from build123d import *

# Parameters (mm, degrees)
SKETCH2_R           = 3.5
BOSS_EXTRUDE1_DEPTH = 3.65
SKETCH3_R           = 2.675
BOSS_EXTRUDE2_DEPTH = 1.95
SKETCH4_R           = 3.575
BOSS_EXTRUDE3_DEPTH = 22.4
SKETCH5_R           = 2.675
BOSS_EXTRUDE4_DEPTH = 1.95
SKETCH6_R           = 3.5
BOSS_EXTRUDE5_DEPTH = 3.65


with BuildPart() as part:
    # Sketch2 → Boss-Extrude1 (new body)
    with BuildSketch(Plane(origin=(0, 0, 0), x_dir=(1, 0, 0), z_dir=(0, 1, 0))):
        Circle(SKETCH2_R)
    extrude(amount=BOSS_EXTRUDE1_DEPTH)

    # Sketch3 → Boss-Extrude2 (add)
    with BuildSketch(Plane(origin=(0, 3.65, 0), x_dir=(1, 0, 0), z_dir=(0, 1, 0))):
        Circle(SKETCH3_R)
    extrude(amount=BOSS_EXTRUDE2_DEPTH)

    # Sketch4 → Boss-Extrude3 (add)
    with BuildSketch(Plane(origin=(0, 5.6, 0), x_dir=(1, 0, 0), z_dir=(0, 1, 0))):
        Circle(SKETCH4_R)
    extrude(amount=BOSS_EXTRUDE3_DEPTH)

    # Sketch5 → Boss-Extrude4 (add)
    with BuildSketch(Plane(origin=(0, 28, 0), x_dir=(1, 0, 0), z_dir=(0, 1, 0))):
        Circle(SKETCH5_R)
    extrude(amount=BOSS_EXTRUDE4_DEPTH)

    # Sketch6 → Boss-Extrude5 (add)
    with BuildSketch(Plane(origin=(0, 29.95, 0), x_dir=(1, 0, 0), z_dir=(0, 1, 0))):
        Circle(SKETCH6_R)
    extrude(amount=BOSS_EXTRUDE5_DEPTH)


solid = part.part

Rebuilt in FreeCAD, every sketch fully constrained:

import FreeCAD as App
import Part
import Sketcher
from FreeCAD import Vector
Q = App.Units.Quantity

doc = App.newDocument("Part")
body = doc.addObject("PartDesign::Body", "Body")

# Sketch on XZ plane
sketch1 = doc.addObject("Sketcher::SketchObject", "Sketch")
body.addObject(sketch1)
sketch1.AttachmentSupport = (doc.XZ_Plane, [""])
sketch1.MapMode = "FlatFace"
sketch1.addGeometry(Part.Circle(Vector(0, 0, 0), Vector(0, 0, 1), 3.5), False)
sketch1.addConstraint([
    Sketcher.Constraint("Coincident", 0, 3, -1, 1),
    Sketcher.Constraint("Diameter", 0, Q("7 mm")),
])
pad1 = doc.addObject("PartDesign::Pad", "Pad")
body.addObject(pad1)
pad1.Profile = sketch1
pad1.Length = 3.65
pad1.Reversed = True

# Sketch on XZ plane
sketch2 = doc.addObject("Sketcher::SketchObject", "Sketch001")
body.addObject(sketch2)
sketch2.AttachmentSupport = (doc.XZ_Plane, [""])
sketch2.MapMode = "FlatFace"
sketch2.AttachmentOffset = App.Placement(Vector(0, 0, -3.65), App.Rotation())
sketch2.addGeometry(Part.Circle(Vector(0, 0, 0), Vector(0, 0, 1), 2.675), False)
sketch2.addConstraint([
    Sketcher.Constraint("Coincident", 0, 3, -1, 1),
    Sketcher.Constraint("Diameter", 0, Q("5.35 mm")),
])
pad2 = doc.addObject("PartDesign::Pad", "Pad001")
body.addObject(pad2)
pad2.Profile = sketch2
pad2.Length = 1.95
pad2.Reversed = True

# Sketch on XZ plane
sketch3 = doc.addObject("Sketcher::SketchObject", "Sketch002")
body.addObject(sketch3)
sketch3.AttachmentSupport = (doc.XZ_Plane, [""])
sketch3.MapMode = "FlatFace"
sketch3.AttachmentOffset = App.Placement(Vector(0, 0, -5.6), App.Rotation())
sketch3.addGeometry(Part.Circle(Vector(0, 0, 0), Vector(0, 0, 1), 3.575), False)
sketch3.addConstraint([
    Sketcher.Constraint("Coincident", 0, 3, -1, 1),
    Sketcher.Constraint("Diameter", 0, Q("7.15 mm")),
])
pad3 = doc.addObject("PartDesign::Pad", "Pad002")
body.addObject(pad3)
pad3.Profile = sketch3
pad3.Length = 22.4
pad3.Reversed = True

# Sketch on XZ plane
sketch4 = doc.addObject("Sketcher::SketchObject", "Sketch003")
body.addObject(sketch4)
sketch4.AttachmentSupport = (doc.XZ_Plane, [""])
sketch4.MapMode = "FlatFace"
sketch4.AttachmentOffset = App.Placement(Vector(0, 0, -28), App.Rotation())
sketch4.addGeometry(Part.Circle(Vector(0, 0, 0), Vector(0, 0, 1), 2.675), False)
sketch4.addConstraint([
    Sketcher.Constraint("Coincident", 0, 3, -1, 1),
    Sketcher.Constraint("Diameter", 0, Q("5.35 mm")),
])
pad4 = doc.addObject("PartDesign::Pad", "Pad003")
body.addObject(pad4)
pad4.Profile = sketch4
pad4.Length = 1.95
pad4.Reversed = True

# Sketch on XZ plane
sketch5 = doc.addObject("Sketcher::SketchObject", "Sketch004")
body.addObject(sketch5)
sketch5.AttachmentSupport = (doc.XZ_Plane, [""])
sketch5.MapMode = "FlatFace"
sketch5.AttachmentOffset = App.Placement(Vector(0, 0, -29.95), App.Rotation())
sketch5.addGeometry(Part.Circle(Vector(0, 0, 0), Vector(0, 0, 1), 3.5), False)
sketch5.addConstraint([
    Sketcher.Constraint("Coincident", 0, 3, -1, 1),
    Sketcher.Constraint("Diameter", 0, Q("7 mm")),
])
pad5 = doc.addObject("PartDesign::Pad", "Pad004")
body.addObject(pad5)
pad5.Profile = sketch5
pad5.Length = 3.65
pad5.Reversed = True

doc.recompute()
